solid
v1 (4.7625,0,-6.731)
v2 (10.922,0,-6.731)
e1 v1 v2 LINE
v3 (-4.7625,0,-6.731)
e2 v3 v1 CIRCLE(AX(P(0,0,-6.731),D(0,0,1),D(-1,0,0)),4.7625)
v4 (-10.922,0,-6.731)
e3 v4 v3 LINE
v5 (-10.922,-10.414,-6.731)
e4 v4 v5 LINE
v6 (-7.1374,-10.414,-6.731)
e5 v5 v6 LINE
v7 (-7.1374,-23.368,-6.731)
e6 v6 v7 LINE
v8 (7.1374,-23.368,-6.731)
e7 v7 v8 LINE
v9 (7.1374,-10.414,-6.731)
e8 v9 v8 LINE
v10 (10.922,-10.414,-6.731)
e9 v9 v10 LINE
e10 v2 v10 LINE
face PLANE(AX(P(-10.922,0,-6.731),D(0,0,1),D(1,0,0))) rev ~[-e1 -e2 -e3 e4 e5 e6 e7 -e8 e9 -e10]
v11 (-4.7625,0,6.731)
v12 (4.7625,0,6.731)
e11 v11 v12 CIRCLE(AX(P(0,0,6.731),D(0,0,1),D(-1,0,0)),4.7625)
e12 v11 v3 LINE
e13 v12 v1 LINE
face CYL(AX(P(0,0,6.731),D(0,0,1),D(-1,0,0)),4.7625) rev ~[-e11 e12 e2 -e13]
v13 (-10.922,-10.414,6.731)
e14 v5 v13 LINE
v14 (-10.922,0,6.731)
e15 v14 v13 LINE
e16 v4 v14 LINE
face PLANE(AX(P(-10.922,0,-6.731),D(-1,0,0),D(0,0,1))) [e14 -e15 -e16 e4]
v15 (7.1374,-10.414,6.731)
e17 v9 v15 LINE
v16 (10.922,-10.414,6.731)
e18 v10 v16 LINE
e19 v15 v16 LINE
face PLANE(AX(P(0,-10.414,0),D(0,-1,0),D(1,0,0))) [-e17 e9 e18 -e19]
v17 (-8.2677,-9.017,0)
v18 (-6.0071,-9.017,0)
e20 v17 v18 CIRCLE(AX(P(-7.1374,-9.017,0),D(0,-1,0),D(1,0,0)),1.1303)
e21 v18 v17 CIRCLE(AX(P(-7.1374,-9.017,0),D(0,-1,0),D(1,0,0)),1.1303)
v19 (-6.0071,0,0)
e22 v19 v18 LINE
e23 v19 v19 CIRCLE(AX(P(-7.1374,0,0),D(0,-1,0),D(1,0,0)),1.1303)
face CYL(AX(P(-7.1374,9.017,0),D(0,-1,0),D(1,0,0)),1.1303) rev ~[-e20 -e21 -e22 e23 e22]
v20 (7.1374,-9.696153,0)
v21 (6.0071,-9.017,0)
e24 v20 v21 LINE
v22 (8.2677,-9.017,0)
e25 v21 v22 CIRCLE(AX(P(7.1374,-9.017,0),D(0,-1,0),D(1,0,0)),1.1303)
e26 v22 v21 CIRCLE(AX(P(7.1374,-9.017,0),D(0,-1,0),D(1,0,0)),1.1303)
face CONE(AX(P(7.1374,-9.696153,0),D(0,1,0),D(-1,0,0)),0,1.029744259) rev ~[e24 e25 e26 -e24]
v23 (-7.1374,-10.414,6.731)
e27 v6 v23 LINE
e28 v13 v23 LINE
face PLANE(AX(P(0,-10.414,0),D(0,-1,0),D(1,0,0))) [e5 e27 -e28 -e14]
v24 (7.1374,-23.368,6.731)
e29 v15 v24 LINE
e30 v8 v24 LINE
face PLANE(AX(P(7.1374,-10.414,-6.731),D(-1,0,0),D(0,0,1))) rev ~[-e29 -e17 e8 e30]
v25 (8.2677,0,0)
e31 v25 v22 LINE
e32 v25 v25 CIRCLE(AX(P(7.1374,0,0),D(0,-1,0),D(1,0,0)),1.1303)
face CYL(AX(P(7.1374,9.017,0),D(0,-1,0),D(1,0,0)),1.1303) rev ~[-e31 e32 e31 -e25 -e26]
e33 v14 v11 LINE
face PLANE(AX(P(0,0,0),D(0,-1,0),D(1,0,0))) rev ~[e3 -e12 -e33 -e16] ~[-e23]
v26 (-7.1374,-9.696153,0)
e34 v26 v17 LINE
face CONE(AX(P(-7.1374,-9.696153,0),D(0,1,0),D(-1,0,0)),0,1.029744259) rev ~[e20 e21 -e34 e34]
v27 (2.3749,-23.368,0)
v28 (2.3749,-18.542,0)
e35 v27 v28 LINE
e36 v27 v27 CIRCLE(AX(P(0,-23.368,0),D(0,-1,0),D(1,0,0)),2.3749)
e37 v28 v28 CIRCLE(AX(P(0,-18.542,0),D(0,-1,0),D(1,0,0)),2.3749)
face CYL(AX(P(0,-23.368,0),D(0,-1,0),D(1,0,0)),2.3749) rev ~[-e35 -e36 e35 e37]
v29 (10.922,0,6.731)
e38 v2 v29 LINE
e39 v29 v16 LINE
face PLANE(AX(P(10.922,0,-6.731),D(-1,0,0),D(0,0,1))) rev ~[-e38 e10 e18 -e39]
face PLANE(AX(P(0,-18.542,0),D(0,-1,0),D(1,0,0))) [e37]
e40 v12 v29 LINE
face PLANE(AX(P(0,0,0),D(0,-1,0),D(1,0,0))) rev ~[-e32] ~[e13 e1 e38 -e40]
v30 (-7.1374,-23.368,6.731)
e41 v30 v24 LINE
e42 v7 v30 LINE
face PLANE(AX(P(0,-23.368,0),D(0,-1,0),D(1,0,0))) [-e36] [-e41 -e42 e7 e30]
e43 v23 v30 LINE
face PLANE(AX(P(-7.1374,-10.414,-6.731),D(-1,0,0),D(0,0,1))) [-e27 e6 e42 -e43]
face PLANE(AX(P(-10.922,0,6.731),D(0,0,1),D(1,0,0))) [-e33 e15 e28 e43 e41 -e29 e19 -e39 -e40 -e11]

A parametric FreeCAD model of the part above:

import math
import FreeCAD as App
import Part
import Sketcher
Q = App.Units.Quantity

doc = App.newDocument("Part")
body = doc.addObject("PartDesign::Body", "Body")

# Sketch on XZ plane
sketch1 = body.newObject("Sketcher::SketchObject", "Sketch")
sketch1.AttachmentSupport = (doc.getObject("XZ_Plane"), [""])
sketch1.MapMode = "FlatFace"
sketch1.addGeometry([
    Part.LineSegment(App.Vector(-10.922, 6.731, 0), App.Vector(-10.922, -6.731, 0)),
    Part.LineSegment(App.Vector(-10.922, -6.731, 0), App.Vector(10.922, -6.731, 0)),
    Part.LineSegment(App.Vector(10.922, -6.731, 0), App.Vector(10.922, 6.731, 0)),
    Part.LineSegment(App.Vector(10.922, 6.731, 0), App.Vector(-10.922, 6.731, 0)),
], False)
sketch1.addConstraint([
    Sketcher.Constraint("Coincident", 0, 2, 1, 1),
    Sketcher.Constraint("Coincident", 1, 2, 2, 1),
    Sketcher.Constraint("Coincident", 2, 2, 3, 1),
    Sketcher.Constraint("Coincident", 3, 2, 0, 1),
    Sketcher.Constraint("Vertical", 0),
    Sketcher.Constraint("Horizontal", 1),
    Sketcher.Constraint("Vertical", 2),
    Sketcher.Constraint("Horizontal", 3),
    Sketcher.Constraint("Symmetric", 0, 2, 2, 2, -1, 1),
    Sketcher.Constraint("DistanceX", 1, 1, 1, 2, Q("0.86 in")),
    Sketcher.Constraint("DistanceY", 0, 2, 0, 1, Q("0.53 in")),
])
pad1 = body.newObject("PartDesign::Pad", "Pad")
pad1.Profile = sketch1
pad1.Length = Q("0.41 in")

# Sketch on XZ plane
sketch2 = body.newObject("Sketcher::SketchObject", "Sketch001")
sketch2.AttachmentSupport = (doc.getObject("XZ_Plane"), [""])
sketch2.MapMode = "FlatFace"
sketch2.AttachmentOffset = App.Placement(App.Vector(0, 0, 0.41 * 25.4), App.Rotation())
sketch2.addGeometry([
    Part.LineSegment(App.Vector(-7.1374, 6.731, 0), App.Vector(-7.1374, -6.731, 0)),
    Part.LineSegment(App.Vector(-7.1374, -6.731, 0), App.Vector(7.1374, -6.731, 0)),
    Part.LineSegment(App.Vector(7.1374, -6.731, 0), App.Vector(7.1374, 6.731, 0)),
    Part.LineSegment(App.Vector(7.1374, 6.731, 0), App.Vector(-7.1374, 6.731, 0)),
], False)
sketch2.addConstraint([
    Sketcher.Constraint("Coincident", 0, 2, 1, 1),
    Sketcher.Constraint("Coincident", 1, 2, 2, 1),
    Sketcher.Constraint("Coincident", 2, 2, 3, 1),
    Sketcher.Constraint("Coincident", 3, 2, 0, 1),
    Sketcher.Constraint("Vertical", 0),
    Sketcher.Constraint("Horizontal", 1),
    Sketcher.Constraint("Vertical", 2),
    Sketcher.Constraint("Horizontal", 3),
    Sketcher.Constraint("Symmetric", 0, 2, 2, 2, -1, 1),
    Sketcher.Constraint("DistanceY", 0, 2, 0, 1, Q("0.53 in")),
    Sketcher.Constraint("DistanceX", 1, 1, 1, 2, Q("0.562 in")),
])
pad2 = body.newObject("PartDesign::Pad", "Pad001")
pad2.Profile = sketch2
pad2.Length = Q("0.51 in")

# Sketch on XZ plane
sketch3 = body.newObject("Sketcher::SketchObject", "Sketch002")
sketch3.AttachmentSupport = (doc.getObject("XZ_Plane"), [""])
sketch3.MapMode = "FlatFace"
sketch3.AttachmentOffset = App.Placement(App.Vector(0, 0, 0.92 * 25.4), App.Rotation())
sketch3.addGeometry(Part.Circle(App.Vector(0, 0, 0), App.Vector(0, 0, 1), 2.3749), False)
sketch3.addConstraint([
    Sketcher.Constraint("Coincident", 0, 3, -1, 1),
    Sketcher.Constraint("Diameter", 0, Q("0.187 in")),
])
pocket1 = body.newObject("PartDesign::Pocket", "Pocket")
pocket1.Profile = sketch3
pocket1.Length = Q("0.19 in")

# Sketch on XZ plane
sketch4 = body.newObject("Sketcher::SketchObject", "Sketch003")
sketch4.AttachmentSupport = (doc.getObject("XZ_Plane"), [""])
sketch4.MapMode = "FlatFace"
sketch4.addGeometry([
    Part.Circle(App.Vector(-7.1374, 0, 0), App.Vector(0, 0, 1), 1.1303),
    Part.Circle(App.Vector(7.1374, 0, 0), App.Vector(0, 0, 1), 1.1303),
], False)
sketch4.addConstraint([
    Sketcher.Constraint("Equal", 0, 1),
    Sketcher.Constraint("Symmetric", 0, 3, 1, 3, -1, 1),
    Sketcher.Constraint("PointOnObject", 0, 3, -1),
    Sketcher.Constraint("Diameter", 0, Q("0.089 in")),
    Sketcher.Constraint("DistanceX", 0, 3, -1, 1, Q("0.281 in")),
])
doc.recompute()
hole = body.newObject("PartDesign::Hole", "Hole")
hole.Profile = sketch4
hole.ThreadType = "None"
hole.Diameter = Q("0.089 in")
hole.DepthType = "Dimension"
hole.Depth = Q("0.355 in")
hole.DrillPoint = "Angled"
hole.DrillPointAngle = 118
hole.Reversed = True

# Sketch on XY plane
sketch5 = body.newObject("Sketcher::SketchObject", "Sketch004")
sketch5.AttachmentSupport = (doc.getObject("XY_Plane"), [""])
sketch5.MapMode = "FlatFace"
sketch5.AttachmentOffset = App.Placement(App.Vector(0, 0, 0.265 * 25.4), App.Rotation())
sketch5.addGeometry([
    Part.ArcOfCircle(Part.Circle(App.Vector(0, 0, 0), App.Vector(0, 0, 1), 4.7625), math.radians(180), math.radians(360)),
    Part.LineSegment(App.Vector(4.7625, 0, 0), App.Vector(-4.7625, 0, 0)),
], False)
sketch5.addConstraint([
    Sketcher.Constraint("Coincident", 0, 1, 1, 2),
    Sketcher.Constraint("Coincident", 1, 1, 0, 2),
    Sketcher.Constraint("Horizontal", 1),
    Sketcher.Constraint("Coincident", 0, 3, -1, 1),
    Sketcher.Constraint("PointOnObject", 0, 1, -1),
    Sketcher.Constraint("Radius", 0, Q("0.1875 in")),
])
pocket2 = body.newObject("PartDesign::Pocket", "Pocket001")
pocket2.Profile = sketch5
pocket2.Type = "ThroughAll"

doc.recompute()
